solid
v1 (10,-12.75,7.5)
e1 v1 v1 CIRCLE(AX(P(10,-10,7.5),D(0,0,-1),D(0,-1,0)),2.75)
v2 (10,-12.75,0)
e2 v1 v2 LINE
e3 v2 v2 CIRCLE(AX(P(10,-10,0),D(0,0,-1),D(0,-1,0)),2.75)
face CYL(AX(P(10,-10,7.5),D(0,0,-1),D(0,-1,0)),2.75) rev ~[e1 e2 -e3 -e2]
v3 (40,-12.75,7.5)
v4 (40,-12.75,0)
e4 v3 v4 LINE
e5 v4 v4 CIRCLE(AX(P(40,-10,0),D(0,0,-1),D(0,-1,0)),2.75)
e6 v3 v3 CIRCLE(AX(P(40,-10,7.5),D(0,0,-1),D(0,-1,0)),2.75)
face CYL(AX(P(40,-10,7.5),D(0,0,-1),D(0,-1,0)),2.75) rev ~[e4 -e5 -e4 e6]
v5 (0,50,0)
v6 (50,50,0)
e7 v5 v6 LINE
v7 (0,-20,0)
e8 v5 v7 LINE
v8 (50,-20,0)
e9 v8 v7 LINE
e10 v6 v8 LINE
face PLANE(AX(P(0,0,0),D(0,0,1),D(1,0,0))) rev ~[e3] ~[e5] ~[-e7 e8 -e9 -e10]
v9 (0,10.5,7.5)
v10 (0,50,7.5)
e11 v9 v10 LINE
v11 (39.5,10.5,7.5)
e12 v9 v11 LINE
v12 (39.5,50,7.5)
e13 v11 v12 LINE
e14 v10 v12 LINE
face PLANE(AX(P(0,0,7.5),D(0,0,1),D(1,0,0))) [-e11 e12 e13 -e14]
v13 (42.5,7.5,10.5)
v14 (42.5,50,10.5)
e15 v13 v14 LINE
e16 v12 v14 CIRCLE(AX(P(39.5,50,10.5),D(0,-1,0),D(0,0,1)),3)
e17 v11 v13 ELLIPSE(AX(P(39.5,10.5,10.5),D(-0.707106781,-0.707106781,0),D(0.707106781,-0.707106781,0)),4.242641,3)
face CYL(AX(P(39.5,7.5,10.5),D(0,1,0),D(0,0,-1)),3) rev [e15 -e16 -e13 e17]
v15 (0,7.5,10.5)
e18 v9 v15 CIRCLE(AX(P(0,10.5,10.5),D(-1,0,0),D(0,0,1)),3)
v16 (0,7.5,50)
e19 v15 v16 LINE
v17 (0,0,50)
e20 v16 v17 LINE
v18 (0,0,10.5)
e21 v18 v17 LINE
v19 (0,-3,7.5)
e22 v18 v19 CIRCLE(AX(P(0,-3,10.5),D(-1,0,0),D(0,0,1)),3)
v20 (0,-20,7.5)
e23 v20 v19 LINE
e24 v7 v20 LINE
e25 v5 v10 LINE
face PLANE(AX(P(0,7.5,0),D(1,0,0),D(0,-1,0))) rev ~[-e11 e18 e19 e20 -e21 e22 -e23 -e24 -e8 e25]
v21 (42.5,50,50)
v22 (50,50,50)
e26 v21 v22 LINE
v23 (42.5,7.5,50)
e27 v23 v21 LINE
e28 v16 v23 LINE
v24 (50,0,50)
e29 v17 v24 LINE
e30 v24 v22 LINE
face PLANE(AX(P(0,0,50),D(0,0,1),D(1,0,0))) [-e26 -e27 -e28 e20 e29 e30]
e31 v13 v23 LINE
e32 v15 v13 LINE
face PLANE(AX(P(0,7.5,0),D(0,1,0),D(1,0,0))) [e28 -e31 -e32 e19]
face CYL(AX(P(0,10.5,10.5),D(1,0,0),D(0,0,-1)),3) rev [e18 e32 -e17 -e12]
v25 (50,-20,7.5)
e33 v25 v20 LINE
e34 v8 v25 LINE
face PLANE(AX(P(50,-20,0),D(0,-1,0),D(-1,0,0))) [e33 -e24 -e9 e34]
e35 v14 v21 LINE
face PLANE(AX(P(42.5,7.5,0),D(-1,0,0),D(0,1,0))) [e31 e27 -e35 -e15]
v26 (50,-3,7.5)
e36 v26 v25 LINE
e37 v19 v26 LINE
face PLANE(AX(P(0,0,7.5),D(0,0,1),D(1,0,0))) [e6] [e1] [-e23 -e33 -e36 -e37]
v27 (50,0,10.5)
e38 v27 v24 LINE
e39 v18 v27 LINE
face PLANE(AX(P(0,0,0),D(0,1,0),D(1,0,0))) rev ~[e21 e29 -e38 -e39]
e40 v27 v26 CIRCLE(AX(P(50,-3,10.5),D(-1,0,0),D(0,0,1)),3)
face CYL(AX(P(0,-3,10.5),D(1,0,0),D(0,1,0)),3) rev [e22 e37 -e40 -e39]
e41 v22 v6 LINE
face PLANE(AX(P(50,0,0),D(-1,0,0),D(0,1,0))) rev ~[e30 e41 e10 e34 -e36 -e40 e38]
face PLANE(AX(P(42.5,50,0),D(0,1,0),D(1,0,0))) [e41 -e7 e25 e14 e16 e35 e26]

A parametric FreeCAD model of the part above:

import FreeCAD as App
import Part
import Sketcher

V = App.Vector


def edges_at(feature, points):
    """Names of the edges that pass closest to the given points."""
    edges = feature.Shape.Edges
    near = lambda p: min(range(len(edges)), key=lambda i: edges[i].distToShape(Part.Vertex(*p))[0])
    return sorted({f"Edge{near(p) + 1}" for p in points})

doc = App.newDocument("Part")
body = doc.addObject("PartDesign::Body", "Body")

# Sketch on XY plane
sketch1 = body.newObject("Sketcher::SketchObject", "Sketch")
sketch1.AttachmentSupport = (doc.getObject("XY_Plane"), [""])
sketch1.MapMode = "FlatFace"
sketch1.addGeometry(Part.LineSegment(V(0, 8, 0), V(0, 0, 0)), False)
sketch1.addGeometry(Part.LineSegment(V(0, 0, 0), V(50, 0, 0)), False)
sketch1.addGeometry(Part.LineSegment(V(50, 0, 0), V(50, 50, 0)), False)
sketch1.addGeometry(Part.LineSegment(V(50, 50, 0), V(42, 50, 0)), False)
sketch1.addGeometry(Part.LineSegment(V(42, 50, 0), V(42, 8, 0)), False)
sketch1.addGeometry(Part.LineSegment(V(42, 8, 0), V(0, 8, 0)), False)
sketch1.addConstraint(Sketcher.Constraint("Coincident", 0, 2, 1, 1))
sketch1.addConstraint(Sketcher.Constraint("Coincident", 1, 2, 2, 1))
sketch1.addConstraint(Sketcher.Constraint("Coincident", 2, 2, 3, 1))
sketch1.addConstraint(Sketcher.Constraint("Coincident", 3, 2, 4, 1))
sketch1.addConstraint(Sketcher.Constraint("Coincident", 4, 2, 5, 1))
sketch1.addConstraint(Sketcher.Constraint("Coincident", 5, 2, 0, 1))
sketch1.addConstraint(Sketcher.Constraint("Vertical", 0))
sketch1.addConstraint(Sketcher.Constraint("Horizontal", 1))
sketch1.addConstraint(Sketcher.Constraint("Vertical", 2))
sketch1.addConstraint(Sketcher.Constraint("Horizontal", 3))
sketch1.addConstraint(Sketcher.Constraint("Vertical", 4))
sketch1.addConstraint(Sketcher.Constraint("Horizontal", 5))
sketch1.addConstraint(Sketcher.Constraint("Coincident", 0, 2, -1, 1))
sketch1.addConstraint(Sketcher.Constraint("Equal", 3, 0))
sketch1.addConstraint(Sketcher.Constraint("Equal", 1, 2))
sketch1.addConstraint(Sketcher.Constraint("DistanceX", 1, 1, 1, 2, 50.0))
sketch1.addConstraint(Sketcher.Constraint("DistanceX", 3, 2, 3, 1, 7.5))
pad1 = body.newObject("PartDesign::Pad", "Pad")
pad1.Profile = sketch1
pad1.Length = 50

# Sketch on XY plane
sketch2 = body.newObject("Sketcher::SketchObject", "Sketch001")
sketch2.AttachmentSupport = (doc.getObject("XY_Plane"), [""])
sketch2.MapMode = "FlatFace"
sketch2.addGeometry(Part.LineSegment(V(0, -20, 0), V(50, -20, 0)), False)
sketch2.addGeometry(Part.LineSegment(V(50, -20, 0), V(50, 50, 0)), False)
sketch2.addGeometry(Part.LineSegment(V(50, 50, 0), V(0, 50, 0)), False)
sketch2.addGeometry(Part.LineSegment(V(0, 50, 0), V(0, -20, 0)), False)
sketch2.addConstraint(Sketcher.Constraint("Coincident", 0, 2, 1, 1))
sketch2.addConstraint(Sketcher.Constraint("Coincident", 1, 2, 2, 1))
sketch2.addConstraint(Sketcher.Constraint("Coincident", 2, 2, 3, 1))
sketch2.addConstraint(Sketcher.Constraint("Coincident", 3, 2, 0, 1))
sketch2.addConstraint(Sketcher.Constraint("Horizontal", 0))
sketch2.addConstraint(Sketcher.Constraint("Vertical", 1))
sketch2.addConstraint(Sketcher.Constraint("Horizontal", 2))
sketch2.addConstraint(Sketcher.Constraint("Vertical", 3))
sketch2.addConstraint(Sketcher.Constraint("PointOnObject", 2, 2, -2))
sketch2.addConstraint(Sketcher.Constraint("DistanceX", 0, 1, 0, 2, 50.0))
sketch2.addConstraint(Sketcher.Constraint("DistanceY", 1, 1, 1, 2, 70.0))
sketch2.addConstraint(Sketcher.Constraint("DistanceY", -1, 1, 1, 2, 50.0))
pad2 = body.newObject("PartDesign::Pad", "Pad001")
pad2.Profile = sketch2
pad2.Length = 7.5

# Sketch on XY plane
sketch3 = body.newObject("Sketcher::SketchObject", "Sketch002")
sketch3.AttachmentSupport = (doc.getObject("XY_Plane"), [""])
sketch3.MapMode = "FlatFace"
sketch3.AttachmentOffset = App.Placement(V(0, 0, 7.5), App.Rotation())
sketch3.addGeometry(Part.Circle(V(10, -10, 0), V(0, 0, 1), 2.8), False)
sketch3.addGeometry(Part.Circle(V(40, -10, 0), V(0, 0, 1), 2.8), False)
sketch3.addConstraint(Sketcher.Constraint("Equal", 0, 1))
sketch3.addConstraint(Sketcher.Constraint("Horizontal", 0, 3, 1, 3))
sketch3.addConstraint(Sketcher.Constraint("Diameter", 0, 5.5))
sketch3.addConstraint(Sketcher.Constraint("DistanceX", -1, 1, 0, 3, 10.0))
sketch3.addConstraint(Sketcher.Constraint("DistanceY", 0, 3, -1, 1, 10.0))
sketch3.addConstraint(Sketcher.Constraint("DistanceX", -1, 1, 1, 3, 40.0))
doc.recompute()
hole = body.newObject("PartDesign::Hole", "Hole")
hole.Profile = sketch3
hole.ThreadType = "None"
hole.Diameter = 5.5
hole.DepthType = "Dimension"
hole.Depth = 10
hole.DrillPoint = "Angled"
hole.DrillPointAngle = 118
doc.recompute()

fillet = body.newObject("PartDesign::Fillet", "Fillet")
fillet.Base = (hole, edges_at(hole, [(25, 0, 7.5)]))
fillet.Radius = 3
doc.recompute()

fillet2 = body.newObject("PartDesign::Fillet", "Fillet001")
fillet2.Base = (fillet, edges_at(fillet, [(21.25, 7.5, 7.5), (42.5, 28.75, 7.5)]))
fillet2.Radius = 3

doc.recompute()
